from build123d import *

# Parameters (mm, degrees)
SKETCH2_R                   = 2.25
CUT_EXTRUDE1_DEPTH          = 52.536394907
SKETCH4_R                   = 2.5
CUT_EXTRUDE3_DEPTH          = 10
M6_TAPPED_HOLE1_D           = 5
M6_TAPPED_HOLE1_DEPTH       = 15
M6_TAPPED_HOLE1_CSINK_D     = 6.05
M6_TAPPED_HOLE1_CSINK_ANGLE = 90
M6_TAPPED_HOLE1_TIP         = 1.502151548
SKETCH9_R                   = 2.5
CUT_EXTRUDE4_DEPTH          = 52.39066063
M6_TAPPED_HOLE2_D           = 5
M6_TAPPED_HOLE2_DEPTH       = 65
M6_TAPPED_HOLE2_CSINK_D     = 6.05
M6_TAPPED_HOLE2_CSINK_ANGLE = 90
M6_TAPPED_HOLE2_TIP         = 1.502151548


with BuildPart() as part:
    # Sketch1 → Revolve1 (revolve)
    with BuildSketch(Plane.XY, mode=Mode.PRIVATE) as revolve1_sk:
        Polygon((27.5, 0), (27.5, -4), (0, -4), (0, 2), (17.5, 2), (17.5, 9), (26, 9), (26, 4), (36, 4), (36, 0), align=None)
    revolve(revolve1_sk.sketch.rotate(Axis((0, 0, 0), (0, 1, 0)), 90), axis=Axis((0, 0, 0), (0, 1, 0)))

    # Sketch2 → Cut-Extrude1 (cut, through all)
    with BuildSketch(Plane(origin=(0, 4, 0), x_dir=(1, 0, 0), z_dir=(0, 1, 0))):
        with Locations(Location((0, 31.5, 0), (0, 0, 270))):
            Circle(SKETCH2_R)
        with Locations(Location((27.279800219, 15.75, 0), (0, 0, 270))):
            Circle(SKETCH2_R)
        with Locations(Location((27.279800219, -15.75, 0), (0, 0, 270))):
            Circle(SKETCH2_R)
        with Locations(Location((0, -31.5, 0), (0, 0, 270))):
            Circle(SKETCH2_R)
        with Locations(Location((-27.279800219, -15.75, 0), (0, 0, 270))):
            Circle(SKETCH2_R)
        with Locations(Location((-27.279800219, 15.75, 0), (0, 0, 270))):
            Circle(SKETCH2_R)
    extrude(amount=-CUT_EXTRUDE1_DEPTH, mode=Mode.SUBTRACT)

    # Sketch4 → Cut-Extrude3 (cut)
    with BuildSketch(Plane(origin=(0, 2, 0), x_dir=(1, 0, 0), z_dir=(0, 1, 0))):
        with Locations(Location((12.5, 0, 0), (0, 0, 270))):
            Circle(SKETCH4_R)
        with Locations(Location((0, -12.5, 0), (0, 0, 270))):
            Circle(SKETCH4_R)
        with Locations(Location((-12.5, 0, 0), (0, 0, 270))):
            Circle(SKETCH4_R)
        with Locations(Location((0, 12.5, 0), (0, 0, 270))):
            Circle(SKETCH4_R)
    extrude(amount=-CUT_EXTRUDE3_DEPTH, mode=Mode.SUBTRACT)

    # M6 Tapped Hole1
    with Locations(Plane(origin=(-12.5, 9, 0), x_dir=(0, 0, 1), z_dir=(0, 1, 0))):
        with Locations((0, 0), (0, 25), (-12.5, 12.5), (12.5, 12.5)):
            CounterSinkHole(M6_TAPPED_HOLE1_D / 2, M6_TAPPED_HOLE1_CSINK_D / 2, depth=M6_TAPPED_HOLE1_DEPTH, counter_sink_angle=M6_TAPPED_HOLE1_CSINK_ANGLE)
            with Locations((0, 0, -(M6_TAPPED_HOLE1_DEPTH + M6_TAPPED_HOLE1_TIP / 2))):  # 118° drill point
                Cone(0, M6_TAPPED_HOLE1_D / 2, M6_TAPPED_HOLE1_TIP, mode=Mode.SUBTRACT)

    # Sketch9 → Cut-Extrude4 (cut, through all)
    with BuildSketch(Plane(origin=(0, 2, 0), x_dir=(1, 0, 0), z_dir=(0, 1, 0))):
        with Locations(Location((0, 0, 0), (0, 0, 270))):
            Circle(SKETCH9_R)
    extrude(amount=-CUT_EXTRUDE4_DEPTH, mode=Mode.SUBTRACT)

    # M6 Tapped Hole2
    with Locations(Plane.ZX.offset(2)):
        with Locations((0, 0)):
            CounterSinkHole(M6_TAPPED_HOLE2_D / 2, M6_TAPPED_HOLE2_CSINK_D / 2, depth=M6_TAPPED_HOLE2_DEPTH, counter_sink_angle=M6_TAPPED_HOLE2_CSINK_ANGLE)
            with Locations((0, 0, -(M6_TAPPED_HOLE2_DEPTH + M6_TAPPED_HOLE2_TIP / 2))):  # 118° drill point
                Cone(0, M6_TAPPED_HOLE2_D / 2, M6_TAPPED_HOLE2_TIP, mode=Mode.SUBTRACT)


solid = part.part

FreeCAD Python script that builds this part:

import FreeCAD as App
import Part
import Sketcher
Q = App.Units.Quantity

doc = App.newDocument("Part")
params = doc.addObject("Spreadsheet::Sheet", "Params")
for row, (alias, value) in enumerate([
    ("sketch1_width", "10 mm"),
    ("sketch1_height", "4 mm"),
    ("sketch1_height2", "5 mm"),
    ("sketch1_height3", "7 mm"),
    ("sketch1_width2", "8.5 mm"),
    ("revolution_angle", "360 deg"),
    ("sketch2_diameter", "4.5 mm"),
    ("sketch3_diameter", "5 mm"),
    ("pocket2_length", "10 mm"),
    ("sketch4_diameter", "5 mm"),
    ("hole_diameter", "5 mm"),
    ("hole_depth", "15 mm"),
    ("hole_csink_diameter", "6.05 mm"),
    ("sketch5_diameter", "5 mm"),
    ("sketch6_diameter", "5 mm"),
    ("hole2_diameter", "5 mm"),
    ("hole2_depth", "65 mm"),
    ("hole2_csink_diameter", "6.05 mm"),
], start=1):
    params.set(f"A{row}", alias)
    params.set(f"B{row}", "=" + value)
    params.setAlias(f"B{row}", alias)

body = doc.addObject("PartDesign::Body", "Body")

sketch1 = doc.addObject("Sketcher::SketchObject", "Sketch")
body.addObject(sketch1)
sketch1.AttachmentSupport = (doc.XY_Plane, [""])
sketch1.MapMode = "FlatFace"
sketch1.addGeometry(Part.LineSegment(App.Vector(27.5, -4, 0), App.Vector(27.5, 0, 0)), False)
sketch1.addGeometry(Part.LineSegment(App.Vector(27.5, 0, 0), App.Vector(36, 0, 0)), False)
sketch1.addGeometry(Part.LineSegment(App.Vector(36, 0, 0), App.Vector(36, 4, 0)), False)
sketch1.addGeometry(Part.LineSegment(App.Vector(36, 4, 0), App.Vector(26, 4, 0)), False)
sketch1.addGeometry(Part.LineSegment(App.Vector(26, 4, 0), App.Vector(26, 9, 0)), False)
sketch1.addGeometry(Part.LineSegment(App.Vector(26, 9, 0), App.Vector(17.5, 9, 0)), False)
sketch1.addGeometry(Part.LineSegment(App.Vector(17.5, 9, 0), App.Vector(17.5, 2, 0)), False)
sketch1.addGeometry(Part.LineSegment(App.Vector(17.5, 2, 0), App.Vector(0, 2, 0)), False)
sketch1.addGeometry(Part.LineSegment(App.Vector(0, 2, 0), App.Vector(0, -4, 0)), False)
sketch1.addGeometry(Part.LineSegment(App.Vector(0, -4, 0), App.Vector(27.5, -4, 0)), False)
sketch1.addConstraint(Sketcher.Constraint("Coincident", 0, 2, 1, 1))
sketch1.addConstraint(Sketcher.Constraint("Coincident", 1, 2, 2, 1))
sketch1.addConstraint(Sketcher.Constraint("Coincident", 2, 2, 3, 1))
sketch1.addConstraint(Sketcher.Constraint("Coincident", 3, 2, 4, 1))
sketch1.addConstraint(Sketcher.Constraint("Coincident", 4, 2, 5, 1))
sketch1.addConstraint(Sketcher.Constraint("Coincident", 5, 2, 6, 1))
sketch1.addConstraint(Sketcher.Constraint("Coincident", 6, 2, 7, 1))
sketch1.addConstraint(Sketcher.Constraint("Coincident", 7, 2, 8, 1))
sketch1.addConstraint(Sketcher.Constraint("Coincident", 8, 2, 9, 1))
sketch1.addConstraint(Sketcher.Constraint("Coincident", 9, 2, 0, 1))
sketch1.addConstraint(Sketcher.Constraint("Vertical", 0))
sketch1.addConstraint(Sketcher.Constraint("Horizontal", 1))
sketch1.addConstraint(Sketcher.Constraint("Vertical", 2))
sketch1.addConstraint(Sketcher.Constraint("Horizontal", 3))
sketch1.addConstraint(Sketcher.Constraint("Vertical", 4))
sketch1.addConstraint(Sketcher.Constraint("Horizontal", 5))
sketch1.addConstraint(Sketcher.Constraint("Vertical", 6))
sketch1.addConstraint(Sketcher.Constraint("Horizontal", 7))
sketch1.addConstraint(Sketcher.Constraint("Vertical", 8))
sketch1.addConstraint(Sketcher.Constraint("Horizontal", 9))
sketch1.addConstraint(Sketcher.Constraint("PointOnObject", 0, 2, -1))
sketch1.addConstraint(Sketcher.Constraint("PointOnObject", 7, 2, -2))
sketch1.addConstraint(Sketcher.Constraint("Equal", 1, 5))
sketch1.addConstraint(Sketcher.Constraint("Equal", 0, 2))
sketch1.addConstraint(Sketcher.Constraint("DistanceX", 3, 2, 3, 1, Q("10 mm")))
sketch1.addConstraint(Sketcher.Constraint("DistanceY", 0, 1, 0, 2, Q("4 mm")))
sketch1.addConstraint(Sketcher.Constraint("DistanceY", 4, 1, 4, 2, Q("5 mm")))
sketch1.addConstraint(Sketcher.Constraint("DistanceY", 6, 2, 6, 1, Q("7 mm")))
sketch1.addConstraint(Sketcher.Constraint("DistanceX", 1, 1, 1, 2, Q("8.5 mm")))
sketch1.addConstraint(Sketcher.Constraint("DistanceX", 7, 2, 7, 1, Q("17.5 mm")))
sketch1.setExpression("Constraints[24]", "Params.sketch1_width")
sketch1.setExpression("Constraints[25]", "Params.sketch1_height")
sketch1.setExpression("Constraints[26]", "Params.sketch1_height2")
sketch1.setExpression("Constraints[27]", "Params.sketch1_height3")
sketch1.setExpression("Constraints[28]", "Params.sketch1_width2")
revolution = doc.addObject("PartDesign::Revolution", "Revolution")
body.addObject(revolution)
revolution.Profile = sketch1
revolution.ReferenceAxis = (sketch1, ["V_Axis"])
revolution.setExpression("Angle", "Params.revolution_angle")

sketch2 = doc.addObject("Sketcher::SketchObject", "Sketch001")
body.addObject(sketch2)
sketch2.AttachmentSupport = (doc.XZ_Plane, [""])
sketch2.MapMode = "FlatFace"
sketch2.AttachmentOffset = App.Placement(App.Vector(0, 0, -4), App.Rotation())
sketch2.addGeometry(Part.Circle(App.Vector(0, -31.5, 0), App.Vector(0, 0, 1), 2.2), False)
sketch2.addGeometry(Part.Circle(App.Vector(27.3, -15.8, 0), App.Vector(0, 0, 1), 2.2), False)
sketch2.addGeometry(Part.Circle(App.Vector(27.3, 15.8, 0), App.Vector(0, 0, 1), 2.2), False)
sketch2.addGeometry(Part.Circle(App.Vector(0, 31.5, 0), App.Vector(0, 0, 1), 2.2), False)
sketch2.addGeometry(Part.Circle(App.Vector(-27.3, 15.8, 0), App.Vector(0, 0, 1), 2.2), False)
sketch2.addGeometry(Part.Circle(App.Vector(-27.3, -15.8, 0), App.Vector(0, 0, 1), 2.2), False)
sketch2.addConstraint(Sketcher.Constraint("Equal", 0, 1))
sketch2.addConstraint(Sketcher.Constraint("Equal", 1, 2))
sketch2.addConstraint(Sketcher.Constraint("Equal", 2, 3))
sketch2.addConstraint(Sketcher.Constraint("Equal", 3, 4))
sketch2.addConstraint(Sketcher.Constraint("Equal", 4, 5))
sketch2.addConstraint(Sketcher.Constraint("Symmetric", 0, 3, 3, 3, -1, 1))
sketch2.addConstraint(Sketcher.Constraint("Symmetric", 1, 3, 4, 3, -1, 1))
sketch2.addConstraint(Sketcher.Constraint("Symmetric", 2, 3, 5, 3, -1, 1))
sketch2.addConstraint(Sketcher.Constraint("Symmetric", 2, 3, 4, 3, -2))
sketch2.addConstraint(Sketcher.Constraint("PointOnObject", 0, 3, -2))
sketch2.addConstraint(Sketcher.Constraint("Diameter", 0, Q("4.5 mm")))
sketch2.addConstraint(Sketcher.Constraint("DistanceY", 0, 3, 3, 3, Q("63 mm")))
sketch2.addConstraint(Sketcher.Constraint("DistanceY", 1, 3, 2, 3, Q("31.5 mm")))
sketch2.addConstraint(Sketcher.Constraint("DistanceX", -1, 1, 1, 3, Q("27.2798 mm")))
sketch2.setExpression("Constraints[10]", "Params.sketch2_diameter")
pocket1 = doc.addObject("PartDesign::Pocket", "Pocket")
body.addObject(pocket1)
pocket1.Profile = sketch2
pocket1.Type = "ThroughAll"
pocket1.Reversed = True

sketch3 = doc.addObject("Sketcher::SketchObject", "Sketch002")
body.addObject(sketch3)
sketch3.AttachmentSupport = (doc.XZ_Plane, [""])
sketch3.MapMode = "FlatFace"
sketch3.AttachmentOffset = App.Placement(App.Vector(0, 0, -2), App.Rotation())
sketch3.addGeometry(Part.Circle(App.Vector(12.5, 0, 0), App.Vector(0, 0, 1), 2.5), False)
sketch3.addGeometry(Part.Circle(App.Vector(0, 12.5, 0), App.Vector(0, 0, 1), 2.5), False)
sketch3.addGeometry(Part.Circle(App.Vector(-12.5, 0, 0), App.Vector(0, 0, 1), 2.5), False)
sketch3.addGeometry(Part.Circle(App.Vector(0, -12.5, 0), App.Vector(0, 0, 1), 2.5), False)
sketch3.addConstraint(Sketcher.Constraint("Equal", 0, 1))
sketch3.addConstraint(Sketcher.Constraint("Equal", 1, 2))
sketch3.addConstraint(Sketcher.Constraint("Equal", 2, 3))
sketch3.addConstraint(Sketcher.Constraint("Symmetric", 0, 3, 2, 3, -1, 1))
sketch3.addConstraint(Sketcher.Constraint("Symmetric", 1, 3, 3, 3, -1, 1))
sketch3.addConstraint(Sketcher.Constraint("PointOnObject", 0, 3, -1))
sketch3.addConstraint(Sketcher.Constraint("PointOnObject", 1, 3, -2))
sketch3.addConstraint(Sketcher.Constraint("Diameter", 0, Q("5 mm")))
sketch3.addConstraint(Sketcher.Constraint("DistanceX", 2, 3, 0, 3, Q("25 mm")))
sketch3.addConstraint(Sketcher.Constraint("DistanceY", 3, 3, 1, 3, Q("25 mm")))
sketch3.setExpression("Constraints[7]", "Params.sketch3_diameter")
pocket2 = doc.addObject("PartDesign::Pocket", "Pocket001")
body.addObject(pocket2)
pocket2.Profile = sketch3
pocket2.setExpression("Length", "Params.pocket2_length")
pocket2.Reversed = True

sketch4 = doc.addObject("Sketcher::SketchObject", "Sketch003")
body.addObject(sketch4)
sketch4.AttachmentSupport = (doc.XZ_Plane, [""])
sketch4.MapMode = "FlatFace"
sketch4.AttachmentOffset = App.Placement(App.Vector(0, 0, -9), App.Rotation())
sketch4.addGeometry(Part.Circle(App.Vector(-12.5, 0, 0), App.Vector(0, 0, 1), 2.5), False)
sketch4.addGeometry(Part.Circle(App.Vector(12.5, 0, 0), App.Vector(0, 0, 1), 2.5), False)
sketch4.addGeometry(Part.Circle(App.Vector(0, -12.5, 0), App.Vector(0, 0, 1), 2.5), False)
sketch4.addGeometry(Part.Circle(App.Vector(0, 12.5, 0), App.Vector(0, 0, 1), 2.5), False)
sketch4.addConstraint(Sketcher.Constraint("Equal", 0, 1))
sketch4.addConstraint(Sketcher.Constraint("Equal", 1, 2))
sketch4.addConstraint(Sketcher.Constraint("Equal", 2, 3))
sketch4.addConstraint(Sketcher.Constraint("Symmetric", 0, 3, 1, 3, -1, 1))
sketch4.addConstraint(Sketcher.Constraint("Symmetric", 2, 3, 3, 3, -1, 1))
sketch4.addConstraint(Sketcher.Constraint("PointOnObject", 0, 3, -1))
sketch4.addConstraint(Sketcher.Constraint("PointOnObject", 2, 3, -2))
sketch4.addConstraint(Sketcher.Constraint("Diameter", 0, Q("5 mm")))
sketch4.addConstraint(Sketcher.Constraint("DistanceX", 0, 3, 1, 3, Q("25 mm")))
sketch4.addConstraint(Sketcher.Constraint("DistanceY", 2, 3, 3, 3, Q("25 mm")))
sketch4.setExpression("Constraints[7]", "Params.sketch4_diameter")
doc.recompute()
hole = doc.addObject("PartDesign::Hole", "Hole")
body.addObject(hole)
hole.Profile = sketch4
hole.ThreadType = "None"
hole.setExpression("Diameter", "Params.hole_diameter")
hole.DepthType = "Dimension"
hole.setExpression("Depth", "Params.hole_depth")
hole.DrillPoint = "Angled"
hole.DrillPointAngle = 118
hole.HoleCutType = "Countersink"
hole.setExpression("HoleCutDiameter", "Params.hole_csink_diameter")
hole.HoleCutCountersinkAngle = 90
hole.Reversed = True

sketch5 = doc.addObject("Sketcher::SketchObject", "Sketch004")
body.addObject(sketch5)
sketch5.AttachmentSupport = (doc.XZ_Plane, [""])
sketch5.MapMode = "FlatFace"
sketch5.AttachmentOffset = App.Placement(App.Vector(0, 0, -2), App.Rotation())
sketch5.addGeometry(Part.Circle(App.Vector(0, 0, 0), App.Vector(0, 0, 1), 2.5), False)
sketch5.addConstraint(Sketcher.Constraint("Coincident", 0, 3, -1, 1))
sketch5.addConstraint(Sketcher.Constraint("Diameter", 0, Q("5 mm")))
sketch5.setExpression("Constraints[1]", "Params.sketch5_diameter")
pocket3 = doc.addObject("PartDesign::Pocket", "Pocket002")
body.addObject(pocket3)
pocket3.Profile = sketch5
pocket3.Type = "ThroughAll"
pocket3.Reversed = True

sketch6 = doc.addObject("Sketcher::SketchObject", "Sketch005")
body.addObject(sketch6)
sketch6.AttachmentSupport = (doc.XZ_Plane, [""])
sketch6.MapMode = "FlatFace"
sketch6.AttachmentOffset = App.Placement(App.Vector(0, 0, -2), App.Rotation())
sketch6.addGeometry(Part.Circle(App.Vector(0, 0, 0), App.Vector(0, 0, 1), 2.5), False)
sketch6.addConstraint(Sketcher.Constraint("Coincident", 0, 3, -1, 1))
sketch6.addConstraint(Sketcher.Constraint("Diameter", 0, Q("5 mm")))
sketch6.setExpression("Constraints[1]", "Params.sketch6_diameter")
doc.recompute()
hole2 = doc.addObject("PartDesign::Hole", "Hole001")
body.addObject(hole2)
hole2.Profile = sketch6
hole2.ThreadType = "None"
hole2.setExpression("Diameter", "Params.hole2_diameter")
hole2.DepthType = "Dimension"
hole2.setExpression("Depth", "Params.hole2_depth")
hole2.DrillPoint = "Angled"
hole2.DrillPointAngle = 118
hole2.HoleCutType = "Countersink"
hole2.setExpression("HoleCutDiameter", "Params.hole2_csink_diameter")
hole2.HoleCutCountersinkAngle = 90
hole2.Reversed = True

doc.recompute()
